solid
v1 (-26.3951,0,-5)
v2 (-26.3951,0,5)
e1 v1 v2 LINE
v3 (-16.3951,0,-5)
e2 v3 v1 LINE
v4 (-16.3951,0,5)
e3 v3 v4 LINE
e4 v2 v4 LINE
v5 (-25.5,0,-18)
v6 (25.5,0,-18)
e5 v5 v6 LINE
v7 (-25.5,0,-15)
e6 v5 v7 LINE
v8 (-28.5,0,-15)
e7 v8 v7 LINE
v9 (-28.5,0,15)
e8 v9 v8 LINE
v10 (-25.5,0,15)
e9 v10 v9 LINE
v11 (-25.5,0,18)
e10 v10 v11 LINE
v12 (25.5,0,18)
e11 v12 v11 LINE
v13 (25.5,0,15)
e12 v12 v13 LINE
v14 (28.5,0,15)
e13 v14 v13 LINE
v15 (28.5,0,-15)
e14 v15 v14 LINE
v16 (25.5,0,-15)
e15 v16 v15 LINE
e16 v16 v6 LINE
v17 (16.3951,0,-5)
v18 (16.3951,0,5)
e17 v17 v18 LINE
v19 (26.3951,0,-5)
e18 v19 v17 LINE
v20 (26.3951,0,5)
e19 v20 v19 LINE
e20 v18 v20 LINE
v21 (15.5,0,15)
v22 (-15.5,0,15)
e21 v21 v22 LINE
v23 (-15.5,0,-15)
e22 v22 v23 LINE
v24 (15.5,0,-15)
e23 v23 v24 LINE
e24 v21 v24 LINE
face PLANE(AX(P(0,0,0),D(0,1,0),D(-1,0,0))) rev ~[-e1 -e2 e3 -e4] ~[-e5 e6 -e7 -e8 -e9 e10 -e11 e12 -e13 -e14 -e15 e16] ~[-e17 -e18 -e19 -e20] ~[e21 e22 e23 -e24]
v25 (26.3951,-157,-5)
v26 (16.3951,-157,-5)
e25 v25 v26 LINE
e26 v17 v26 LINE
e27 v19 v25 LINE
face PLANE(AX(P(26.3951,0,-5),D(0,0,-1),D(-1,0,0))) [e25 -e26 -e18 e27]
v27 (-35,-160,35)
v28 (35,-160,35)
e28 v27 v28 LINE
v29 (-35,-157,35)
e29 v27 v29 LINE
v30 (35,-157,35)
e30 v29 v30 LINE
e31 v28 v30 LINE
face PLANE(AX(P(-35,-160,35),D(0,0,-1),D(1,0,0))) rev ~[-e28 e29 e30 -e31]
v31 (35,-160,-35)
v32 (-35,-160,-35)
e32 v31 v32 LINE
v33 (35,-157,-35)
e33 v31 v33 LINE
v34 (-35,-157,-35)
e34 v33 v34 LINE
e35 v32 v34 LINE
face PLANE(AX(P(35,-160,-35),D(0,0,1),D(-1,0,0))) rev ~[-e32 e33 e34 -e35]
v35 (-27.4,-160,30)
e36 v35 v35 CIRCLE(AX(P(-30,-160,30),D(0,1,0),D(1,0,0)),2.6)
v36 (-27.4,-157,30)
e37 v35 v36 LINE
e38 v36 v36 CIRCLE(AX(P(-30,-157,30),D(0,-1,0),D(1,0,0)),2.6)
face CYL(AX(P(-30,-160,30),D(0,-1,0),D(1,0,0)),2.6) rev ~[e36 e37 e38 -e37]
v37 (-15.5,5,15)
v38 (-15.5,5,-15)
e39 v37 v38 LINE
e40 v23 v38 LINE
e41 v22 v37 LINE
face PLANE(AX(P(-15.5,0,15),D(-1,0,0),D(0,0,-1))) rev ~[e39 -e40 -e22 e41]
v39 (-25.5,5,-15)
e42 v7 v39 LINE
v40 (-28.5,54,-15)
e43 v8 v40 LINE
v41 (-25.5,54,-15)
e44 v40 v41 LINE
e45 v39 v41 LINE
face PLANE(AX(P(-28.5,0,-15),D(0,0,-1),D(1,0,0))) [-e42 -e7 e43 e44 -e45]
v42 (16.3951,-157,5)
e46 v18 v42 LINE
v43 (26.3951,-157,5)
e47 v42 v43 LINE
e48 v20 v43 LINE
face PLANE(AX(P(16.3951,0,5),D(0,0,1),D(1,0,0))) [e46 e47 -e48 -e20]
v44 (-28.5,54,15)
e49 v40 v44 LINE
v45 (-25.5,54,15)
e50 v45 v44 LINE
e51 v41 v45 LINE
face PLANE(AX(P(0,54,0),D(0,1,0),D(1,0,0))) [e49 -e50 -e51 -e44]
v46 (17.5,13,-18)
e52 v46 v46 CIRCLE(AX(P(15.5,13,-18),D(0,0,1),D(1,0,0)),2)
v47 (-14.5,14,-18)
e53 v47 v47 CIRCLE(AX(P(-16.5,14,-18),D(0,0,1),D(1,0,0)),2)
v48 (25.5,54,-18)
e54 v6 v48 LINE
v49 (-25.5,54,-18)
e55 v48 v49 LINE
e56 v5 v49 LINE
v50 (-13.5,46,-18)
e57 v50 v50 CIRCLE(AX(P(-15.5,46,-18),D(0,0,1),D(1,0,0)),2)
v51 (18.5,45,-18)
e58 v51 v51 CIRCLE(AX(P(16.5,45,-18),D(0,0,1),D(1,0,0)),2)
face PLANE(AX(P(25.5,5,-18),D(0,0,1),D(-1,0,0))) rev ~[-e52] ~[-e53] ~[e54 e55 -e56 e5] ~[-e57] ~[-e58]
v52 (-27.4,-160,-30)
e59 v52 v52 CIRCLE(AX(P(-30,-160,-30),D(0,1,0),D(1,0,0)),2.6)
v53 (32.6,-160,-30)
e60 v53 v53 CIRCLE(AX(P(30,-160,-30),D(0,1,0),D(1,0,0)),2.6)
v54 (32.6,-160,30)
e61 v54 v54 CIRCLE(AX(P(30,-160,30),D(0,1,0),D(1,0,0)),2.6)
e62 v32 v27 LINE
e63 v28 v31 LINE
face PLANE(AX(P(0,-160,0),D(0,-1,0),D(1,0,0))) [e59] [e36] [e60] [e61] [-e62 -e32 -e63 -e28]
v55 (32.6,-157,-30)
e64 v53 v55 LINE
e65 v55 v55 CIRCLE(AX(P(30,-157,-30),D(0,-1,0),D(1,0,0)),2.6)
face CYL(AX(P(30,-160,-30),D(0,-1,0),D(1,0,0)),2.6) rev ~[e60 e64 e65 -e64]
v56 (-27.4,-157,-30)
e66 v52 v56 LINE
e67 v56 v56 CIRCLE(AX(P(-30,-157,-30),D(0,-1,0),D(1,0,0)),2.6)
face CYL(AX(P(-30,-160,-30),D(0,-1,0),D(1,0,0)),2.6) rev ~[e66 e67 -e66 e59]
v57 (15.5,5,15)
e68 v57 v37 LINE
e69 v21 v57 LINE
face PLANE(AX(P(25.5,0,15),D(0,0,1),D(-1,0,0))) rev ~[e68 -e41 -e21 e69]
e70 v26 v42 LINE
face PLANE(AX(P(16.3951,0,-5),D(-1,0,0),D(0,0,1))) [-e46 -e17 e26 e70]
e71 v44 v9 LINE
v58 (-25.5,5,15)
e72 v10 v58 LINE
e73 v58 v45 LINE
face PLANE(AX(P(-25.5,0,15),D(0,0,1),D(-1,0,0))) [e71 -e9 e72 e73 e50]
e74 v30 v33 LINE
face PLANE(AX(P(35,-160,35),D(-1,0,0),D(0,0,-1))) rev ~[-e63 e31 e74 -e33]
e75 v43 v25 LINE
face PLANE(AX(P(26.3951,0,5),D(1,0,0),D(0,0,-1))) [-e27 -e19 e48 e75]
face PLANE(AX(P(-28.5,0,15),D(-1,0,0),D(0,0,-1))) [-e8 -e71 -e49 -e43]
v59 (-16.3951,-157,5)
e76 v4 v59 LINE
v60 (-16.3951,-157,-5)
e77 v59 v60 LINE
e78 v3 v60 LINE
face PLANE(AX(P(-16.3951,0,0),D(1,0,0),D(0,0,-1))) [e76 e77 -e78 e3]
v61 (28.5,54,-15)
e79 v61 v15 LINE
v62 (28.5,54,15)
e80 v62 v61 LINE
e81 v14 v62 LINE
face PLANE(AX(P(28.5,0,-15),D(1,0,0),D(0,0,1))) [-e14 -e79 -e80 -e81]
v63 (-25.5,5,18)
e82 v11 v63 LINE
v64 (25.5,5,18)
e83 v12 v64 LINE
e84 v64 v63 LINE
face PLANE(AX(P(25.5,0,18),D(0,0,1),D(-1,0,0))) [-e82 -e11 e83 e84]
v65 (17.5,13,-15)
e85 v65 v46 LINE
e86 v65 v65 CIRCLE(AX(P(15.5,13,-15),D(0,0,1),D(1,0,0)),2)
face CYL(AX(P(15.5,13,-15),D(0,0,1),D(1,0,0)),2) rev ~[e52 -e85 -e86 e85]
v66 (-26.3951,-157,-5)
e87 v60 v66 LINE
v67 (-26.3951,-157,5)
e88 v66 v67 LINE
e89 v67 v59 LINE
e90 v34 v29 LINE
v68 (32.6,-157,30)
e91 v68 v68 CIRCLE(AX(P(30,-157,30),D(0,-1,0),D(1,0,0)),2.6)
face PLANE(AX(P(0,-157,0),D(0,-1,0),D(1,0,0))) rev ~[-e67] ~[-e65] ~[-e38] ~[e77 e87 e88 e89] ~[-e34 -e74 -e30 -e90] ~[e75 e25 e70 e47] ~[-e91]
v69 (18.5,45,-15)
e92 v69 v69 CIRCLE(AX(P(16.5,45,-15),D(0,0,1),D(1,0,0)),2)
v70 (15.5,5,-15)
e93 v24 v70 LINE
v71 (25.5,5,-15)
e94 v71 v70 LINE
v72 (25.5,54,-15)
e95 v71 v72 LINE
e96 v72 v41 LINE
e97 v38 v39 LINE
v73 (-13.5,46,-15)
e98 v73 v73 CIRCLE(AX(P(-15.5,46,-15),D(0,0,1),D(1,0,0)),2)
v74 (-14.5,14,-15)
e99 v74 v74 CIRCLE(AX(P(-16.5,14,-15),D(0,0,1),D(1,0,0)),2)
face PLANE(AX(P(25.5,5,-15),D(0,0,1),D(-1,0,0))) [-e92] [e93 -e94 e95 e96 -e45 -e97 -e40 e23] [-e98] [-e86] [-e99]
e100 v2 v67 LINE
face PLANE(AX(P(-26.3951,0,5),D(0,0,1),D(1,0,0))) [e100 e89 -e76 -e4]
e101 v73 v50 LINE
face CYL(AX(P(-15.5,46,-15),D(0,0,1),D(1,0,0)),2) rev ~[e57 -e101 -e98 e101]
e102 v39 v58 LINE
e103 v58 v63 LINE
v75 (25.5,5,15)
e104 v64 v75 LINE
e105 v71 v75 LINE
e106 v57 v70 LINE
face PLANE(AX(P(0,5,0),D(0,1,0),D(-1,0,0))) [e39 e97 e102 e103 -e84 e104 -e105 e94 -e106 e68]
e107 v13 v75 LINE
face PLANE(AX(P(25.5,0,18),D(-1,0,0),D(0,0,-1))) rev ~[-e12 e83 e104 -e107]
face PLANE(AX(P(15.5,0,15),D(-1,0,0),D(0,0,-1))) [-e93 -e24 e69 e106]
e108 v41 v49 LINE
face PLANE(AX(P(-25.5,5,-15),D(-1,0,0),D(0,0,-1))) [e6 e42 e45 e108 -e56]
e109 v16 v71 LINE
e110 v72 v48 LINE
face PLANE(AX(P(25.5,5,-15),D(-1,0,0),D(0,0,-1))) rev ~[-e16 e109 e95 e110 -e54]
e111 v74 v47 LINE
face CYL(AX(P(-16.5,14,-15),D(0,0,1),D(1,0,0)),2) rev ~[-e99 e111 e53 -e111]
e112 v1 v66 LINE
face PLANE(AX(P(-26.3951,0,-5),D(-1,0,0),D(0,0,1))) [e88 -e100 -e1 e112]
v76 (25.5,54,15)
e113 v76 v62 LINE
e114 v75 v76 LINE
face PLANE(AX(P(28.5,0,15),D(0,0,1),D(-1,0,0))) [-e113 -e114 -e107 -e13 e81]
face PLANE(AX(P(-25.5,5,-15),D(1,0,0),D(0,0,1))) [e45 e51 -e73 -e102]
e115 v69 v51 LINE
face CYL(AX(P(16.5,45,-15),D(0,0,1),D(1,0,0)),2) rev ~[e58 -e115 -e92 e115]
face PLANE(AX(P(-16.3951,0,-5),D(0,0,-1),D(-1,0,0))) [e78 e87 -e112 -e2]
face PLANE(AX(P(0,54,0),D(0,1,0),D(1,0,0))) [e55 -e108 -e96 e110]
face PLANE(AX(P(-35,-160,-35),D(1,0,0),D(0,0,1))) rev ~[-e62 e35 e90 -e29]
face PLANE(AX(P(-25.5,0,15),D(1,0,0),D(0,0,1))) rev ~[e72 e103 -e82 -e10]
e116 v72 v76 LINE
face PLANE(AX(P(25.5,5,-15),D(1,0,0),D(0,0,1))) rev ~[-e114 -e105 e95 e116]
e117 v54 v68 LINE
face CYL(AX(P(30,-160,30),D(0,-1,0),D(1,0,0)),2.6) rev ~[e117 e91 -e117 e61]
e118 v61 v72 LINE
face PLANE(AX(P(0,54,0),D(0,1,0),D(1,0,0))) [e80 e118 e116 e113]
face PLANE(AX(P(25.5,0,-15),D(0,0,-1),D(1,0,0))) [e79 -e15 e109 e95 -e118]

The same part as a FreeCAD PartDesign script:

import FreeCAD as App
import Part
import Sketcher
Q = App.Units.Quantity

doc = App.newDocument("Part")
params = doc.addObject("Spreadsheet::Sheet", "Params")
for row, (alias, value) in enumerate([
    ("sketch1_width", "10 mm"),
    ("sketch1_height", "30 mm"),
    ("pad1_length", "5 mm"),
    ("sketch2_width", "51 mm"),
    ("sketch2_width2", "3 mm"),
    ("sketch2_height", "30 mm"),
    ("pad2_length", "5 mm"),
    ("sketch3_width", "51 mm"),
    ("sketch3_height", "3 mm"),
    ("pad3_length", "49 mm"),
    ("sketch4_diameter", "4 mm"),
    ("pocket1_length", "49 mm"),
    ("sketch5_width", "3 mm"),
    ("sketch5_height", "30 mm"),
    ("pad4_length", "49 mm"),
    ("sketch6_width", "10 mm"),
    ("pad5_length", "160 mm"),
    ("sketch7_diameter", "5.2 mm"),
    ("sketch7_width", "70 mm"),
    ("sketch7_width2", "10 mm"),
    ("pad6_length", "3 mm"),
], start=1):
    params.set(f"A{row}", alias)
    params.set(f"B{row}", "=" + value)
    params.setAlias(f"B{row}", alias)

body = doc.addObject("PartDesign::Body", "Body")
body.AllowCompound = True

sketch1 = body.newObject("Sketcher::SketchObject", "Sketch")
sketch1.AttachmentSupport = (doc.getObject("XZ_Plane"), [""])
sketch1.MapMode = "FlatFace"
sketch1.addGeometry(Part.LineSegment(App.Vector(-26, -15, 0), App.Vector(-26, 15, 0)), False)
sketch1.addGeometry(Part.LineSegment(App.Vector(-26, 15, 0), App.Vector(-16, 15, 0)), False)
sketch1.addGeometry(Part.LineSegment(App.Vector(-16, 15, 0), App.Vector(-16, -15, 0)), False)
sketch1.addGeometry(Part.LineSegment(App.Vector(-16, -15, 0), App.Vector(-26, -15, 0)), False)
sketch1.addGeometry(Part.LineSegment(App.Vector(16, -15, 0), App.Vector(16, 15, 0)), False)
sketch1.addGeometry(Part.LineSegment(App.Vector(16, 15, 0), App.Vector(26, 15, 0)), False)
sketch1.addGeometry(Part.LineSegment(App.Vector(26, 15, 0), App.Vector(26, -15, 0)), False)
sketch1.addGeometry(Part.LineSegment(App.Vector(26, -15, 0), App.Vector(16, -15, 0)), False)
sketch1.addConstraint(Sketcher.Constraint("Coincident", 0, 2, 1, 1))
sketch1.addConstraint(Sketcher.Constraint("Coincident", 1, 2, 2, 1))
sketch1.addConstraint(Sketcher.Constraint("Coincident", 2, 2, 3, 1))
sketch1.addConstraint(Sketcher.Constraint("Coincident", 3, 2, 0, 1))
sketch1.addConstraint(Sketcher.Constraint("Coincident", 4, 2, 5, 1))
sketch1.addConstraint(Sketcher.Constraint("Coincident", 5, 2, 6, 1))
sketch1.addConstraint(Sketcher.Constraint("Coincident", 6, 2, 7, 1))
sketch1.addConstraint(Sketcher.Constraint("Coincident", 7, 2, 4, 1))
sketch1.addConstraint(Sketcher.Constraint("Vertical", 0))
sketch1.addConstraint(Sketcher.Constraint("Horizontal", 1))
sketch1.addConstraint(Sketcher.Constraint("Vertical", 2))
sketch1.addConstraint(Sketcher.Constraint("Horizontal", 3))
sketch1.addConstraint(Sketcher.Constraint("Vertical", 4))
sketch1.addConstraint(Sketcher.Constraint("Horizontal", 5))
sketch1.addConstraint(Sketcher.Constraint("Vertical", 6))
sketch1.addConstraint(Sketcher.Constraint("Horizontal", 7))
sketch1.addConstraint(Sketcher.Constraint("Symmetric", 2, 2, 4, 2, -1, 1))
sketch1.addConstraint(Sketcher.Constraint("Symmetric", 0, 2, 6, 2, -1, 1))
sketch1.addConstraint(Sketcher.Constraint("Horizontal", 1, 2, 4, 2))
sketch1.addConstraint(Sketcher.Constraint("DistanceX", 1, 1, 1, 2, Q("10 mm")))
sketch1.addConstraint(Sketcher.Constraint("DistanceY", 0, 1, 0, 2, Q("30 mm")))
sketch1.addConstraint(Sketcher.Constraint("DistanceX", 0, 2, 5, 2, Q("51 mm")))
sketch1.setExpression("Constraints[19]", "Params.sketch1_width")
sketch1.setExpression("Constraints[20]", "Params.sketch1_height")
pad1 = body.newObject("PartDesign::Pad", "Pad")
pad1.Profile = sketch1
pad1.setExpression("Length", "Params.pad1_length")
pad1.Reversed = True

sketch2 = body.newObject("Sketcher::SketchObject", "Sketch001")
sketch2.AttachmentSupport = (doc.getObject("XZ_Plane"), [""])
sketch2.MapMode = "FlatFace"
sketch2.addGeometry(Part.LineSegment(App.Vector(-25.5, 18, 0), App.Vector(25.5, 18, 0)), False)
sketch2.addGeometry(Part.LineSegment(App.Vector(25.5, 18, 0), App.Vector(25.5, 15, 0)), False)
sketch2.addGeometry(Part.LineSegment(App.Vector(25.5, 15, 0), App.Vector(-25.5, 15, 0)), False)
sketch2.addGeometry(Part.LineSegment(App.Vector(-25.5, 15, 0), App.Vector(-25.5, 18, 0)), False)
sketch2.addGeometry(Part.LineSegment(App.Vector(25.5, 15, 0), App.Vector(28.5, 15, 0)), False)
sketch2.addGeometry(Part.LineSegment(App.Vector(28.5, 15, 0), App.Vector(28.5, -15, 0)), False)
sketch2.addGeometry(Part.LineSegment(App.Vector(28.5, -15, 0), App.Vector(25.5, -15, 0)), False)
sketch2.addGeometry(Part.LineSegment(App.Vector(25.5, -15, 0), App.Vector(25.5, 15, 0)), False)
sketch2.addGeometry(Part.LineSegment(App.Vector(-28.5, 15, 0), App.Vector(-25.5, 15, 0)), False)
sketch2.addGeometry(Part.LineSegment(App.Vector(-25.5, 15, 0), App.Vector(-25.5, -15, 0)), False)
sketch2.addGeometry(Part.LineSegment(App.Vector(-25.5, -15, 0), App.Vector(-28.5, -15, 0)), False)
sketch2.addGeometry(Part.LineSegment(App.Vector(-28.5, -15, 0), App.Vector(-28.5, 15, 0)), False)
sketch2.addGeometry(Part.LineSegment(App.Vector(-25.5, -15, 0), App.Vector(25.5, -15, 0)), False)
sketch2.addGeometry(Part.LineSegment(App.Vector(25.5, -15, 0), App.Vector(25.5, -18, 0)), False)
sketch2.addGeometry(Part.LineSegment(App.Vector(25.5, -18, 0), App.Vector(-25.5, -18, 0)), False)
sketch2.addGeometry(Part.LineSegment(App.Vector(-25.5, -18, 0), App.Vector(-25.5, -15, 0)), False)
sketch2.addConstraint(Sketcher.Constraint("Coincident", 0, 2, 1, 1))
sketch2.addConstraint(Sketcher.Constraint("Coincident", 1, 2, 2, 1))
sketch2.addConstraint(Sketcher.Constraint("Coincident", 2, 2, 3, 1))
sketch2.addConstraint(Sketcher.Constraint("Coincident", 3, 2, 0, 1))
sketch2.addConstraint(Sketcher.Constraint("Coincident", 4, 2, 5, 1))
sketch2.addConstraint(Sketcher.Constraint("Coincident", 5, 2, 6, 1))
sketch2.addConstraint(Sketcher.Constraint("Coincident", 6, 2, 7, 1))
sketch2.addConstraint(Sketcher.Constraint("Coincident", 7, 2, 4, 1))
sketch2.addConstraint(Sketcher.Constraint("Coincident", 8, 2, 9, 1))
sketch2.addConstraint(Sketcher.Constraint("Coincident", 9, 2, 10, 1))
sketch2.addConstraint(Sketcher.Constraint("Coincident", 10, 2, 11, 1))
sketch2.addConstraint(Sketcher.Constraint("Coincident", 11, 2, 8, 1))
sketch2.addConstraint(Sketcher.Constraint("Coincident", 12, 2, 13, 1))
sketch2.addConstraint(Sketcher.Constraint("Coincident", 13, 2, 14, 1))
sketch2.addConstraint(Sketcher.Constraint("Coincident", 14, 2, 15, 1))
sketch2.addConstraint(Sketcher.Constraint("Coincident", 15, 2, 12, 1))
sketch2.addConstraint(Sketcher.Constraint("Horizontal", 0))
sketch2.addConstraint(Sketcher.Constraint("Vertical", 1))
sketch2.addConstraint(Sketcher.Constraint("Horizontal", 2))
sketch2.addConstraint(Sketcher.Constraint("Vertical", 3))
sketch2.addConstraint(Sketcher.Constraint("Horizontal", 4))
sketch2.addConstraint(Sketcher.Constraint("Vertical", 5))
sketch2.addConstraint(Sketcher.Constraint("Horizontal", 6))
sketch2.addConstraint(Sketcher.Constraint("Vertical", 7))
sketch2.addConstraint(Sketcher.Constraint("Horizontal", 8))
sketch2.addConstraint(Sketcher.Constraint("Vertical", 9))
sketch2.addConstraint(Sketcher.Constraint("Horizontal", 10))
sketch2.addConstraint(Sketcher.Constraint("Vertical", 11))
sketch2.addConstraint(Sketcher.Constraint("Horizontal", 12))
sketch2.addConstraint(Sketcher.Constraint("Vertical", 13))
sketch2.addConstraint(Sketcher.Constraint("Horizontal", 14))
sketch2.addConstraint(Sketcher.Constraint("Vertical", 15))
sketch2.addConstraint(Sketcher.Constraint("Coincident", 7, 2, 1, 2))
sketch2.addConstraint(Sketcher.Constraint("Coincident", 8, 2, 2, 2))
sketch2.addConstraint(Sketcher.Constraint("Coincident", 12, 2, 6, 2))
sketch2.addConstraint(Sketcher.Constraint("Coincident", 15, 2, 9, 2))
sketch2.addConstraint(Sketcher.Constraint("Symmetric", 2, 2, 6, 2, -1, 1))
sketch2.addConstraint(Sketcher.Constraint("Equal", 6, 8))
sketch2.addConstraint(Sketcher.Constraint("Equal", 10, 1))
sketch2.addConstraint(Sketcher.Constraint("Equal", 3, 13))
sketch2.addConstraint(Sketcher.Constraint("DistanceX", 0, 1, 0, 2, Q("51 mm")))
sketch2.addConstraint(Sketcher.Constraint("DistanceX", 4, 1, 4, 2, Q("3 mm")))
sketch2.addConstraint(Sketcher.Constraint("DistanceY", 5, 2, 5, 1, Q("30 mm")))
sketch2.setExpression("Constraints[40]", "Params.sketch2_width")
sketch2.setExpression("Constraints[41]", "Params.sketch2_width2")
sketch2.setExpression("Constraints[42]", "Params.sketch2_height")
pad2 = body.newObject("PartDesign::Pad", "Pad001")
pad2.Profile = sketch2
pad2.setExpression("Length", "Params.pad2_length")
pad2.Reversed = True

sketch3 = body.newObject("Sketcher::SketchObject", "Sketch002")
sketch3.AttachmentSupport = (doc.getObject("XZ_Plane"), [""])
sketch3.MapMode = "FlatFace"
sketch3.AttachmentOffset = App.Placement(App.Vector(0, 0, -5), App.Rotation())
sketch3.addGeometry(Part.LineSegment(App.Vector(25.5, -15, 0), App.Vector(25.5, -18, 0)), False)
sketch3.addGeometry(Part.LineSegment(App.Vector(25.5, -18, 0), App.Vector(-25.5, -18, 0)), False)
sketch3.addGeometry(Part.LineSegment(App.Vector(-25.5, -18, 0), App.Vector(-25.5, -15, 0)), False)
sketch3.addGeometry(Part.LineSegment(App.Vector(-25.5, -15, 0), App.Vector(25.5, -15, 0)), False)
sketch3.addConstraint(Sketcher.Constraint("Coincident", 0, 2, 1, 1))
sketch3.addConstraint(Sketcher.Constraint("Coincident", 1, 2, 2, 1))
sketch3.addConstraint(Sketcher.Constraint("Coincident", 2, 2, 3, 1))
sketch3.addConstraint(Sketcher.Constraint("Coincident", 3, 2, 0, 1))
sketch3.addConstraint(Sketcher.Constraint("Vertical", 0))
sketch3.addConstraint(Sketcher.Constraint("Horizontal", 1))
sketch3.addConstraint(Sketcher.Constraint("Vertical", 2))
sketch3.addConstraint(Sketcher.Constraint("Horizontal", 3))
sketch3.addConstraint(Sketcher.Constraint("DistanceX", 1, 2, 1, 1, Q("51 mm")))
sketch3.addConstraint(Sketcher.Constraint("DistanceY", 0, 2, 0, 1, Q("3 mm")))
sketch3.addConstraint(Sketcher.Constraint("DistanceY", 0, 2, -1, 1, Q("18 mm")))
sketch3.addConstraint(Sketcher.Constraint("DistanceX", -1, 1, 0, 2, Q("25.5 mm")))
sketch3.setExpression("Constraints[8]", "Params.sketch3_width")
sketch3.setExpression("Constraints[9]", "Params.sketch3_height")
pad3 = body.newObject("PartDesign::Pad", "Pad002")
pad3.Profile = sketch3
pad3.setExpression("Length", "Params.pad3_length")
pad3.Reversed = True

sketch4 = body.newObject("Sketcher::SketchObject", "Sketch003")
sketch4.AttachmentSupport = (doc.getObject("XY_Plane"), [""])
sketch4.MapMode = "FlatFace"
sketch4.AttachmentOffset = App.Placement(App.Vector(0, 0, -15), App.Rotation())
sketch4.addGeometry(Part.Circle(App.Vector(16.5, 45, 0), App.Vector(0, 0, 1), 2), False)
sketch4.addGeometry(Part.Circle(App.Vector(-15.5, 46, 0), App.Vector(0, 0, 1), 2), False)
sketch4.addGeometry(Part.Circle(App.Vector(-16.5, 14, 0), App.Vector(0, 0, 1), 2), False)
sketch4.addGeometry(Part.Circle(App.Vector(15.5, 13, 0), App.Vector(0, 0, 1), 2), False)
sketch4.addConstraint(Sketcher.Constraint("Equal", 0, 1))
sketch4.addConstraint(Sketcher.Constraint("Equal", 1, 2))
sketch4.addConstraint(Sketcher.Constraint("Equal", 2, 3))
sketch4.addConstraint(Sketcher.Constraint("Diameter", 0, Q("4 mm")))
sketch4.addConstraint(Sketcher.Constraint("DistanceY", -1, 1, 0, 3, Q("45 mm")))
sketch4.addConstraint(Sketcher.Constraint("DistanceY", -1, 1, 1, 3, Q("46 mm")))
sketch4.addConstraint(Sketcher.Constraint("DistanceY", -1, 1, 2, 3, Q("14 mm")))
sketch4.addConstraint(Sketcher.Constraint("DistanceY", -1, 1, 3, 3, Q("13 mm")))
sketch4.addConstraint(Sketcher.Constraint("DistanceX", 1, 3, 0, 3, Q("32 mm")))
sketch4.addConstraint(Sketcher.Constraint("DistanceX", 2, 3, 1, 3, Q("1 mm")))
sketch4.addConstraint(Sketcher.Constraint("DistanceX", 3, 3, 0, 3, Q("1 mm")))
sketch4.addConstraint(Sketcher.Constraint("DistanceX", -1, 1, 0, 3, Q("16.5 mm")))
sketch4.setExpression("Constraints[3]", "Params.sketch4_diameter")
pocket1 = body.newObject("PartDesign::Pocket", "Pocket")
pocket1.Profile = sketch4
pocket1.setExpression("Length", "Params.pocket1_length")

sketch5 = body.newObject("Sketcher::SketchObject", "Sketch004")
sketch5.AttachmentSupport = (doc.getObject("XZ_Plane"), [""])
sketch5.MapMode = "FlatFace"
sketch5.AttachmentOffset = App.Placement(App.Vector(0, 0, -5), App.Rotation())
sketch5.addGeometry(Part.LineSegment(App.Vector(-25.5, -15, 0), App.Vector(-28.5, -15, 0)), False)
sketch5.addGeometry(Part.LineSegment(App.Vector(-28.5, -15, 0), App.Vector(-28.5, 15, 0)), False)
sketch5.addGeometry(Part.LineSegment(App.Vector(-28.5, 15, 0), App.Vector(-25.5, 15, 0)), False)
sketch5.addGeometry(Part.LineSegment(App.Vector(-25.5, 15, 0), App.Vector(-25.5, -15, 0)), False)
sketch5.addGeometry(Part.LineSegment(App.Vector(28.5, 15, 0), App.Vector(28.5, -15, 0)), False)
sketch5.addGeometry(Part.LineSegment(App.Vector(28.5, -15, 0), App.Vector(25.5, -15, 0)), False)
sketch5.addGeometry(Part.LineSegment(App.Vector(25.5, -15, 0), App.Vector(25.5, 15, 0)), False)
sketch5.addGeometry(Part.LineSegment(App.Vector(25.5, 15, 0), App.Vector(28.5, 15, 0)), False)
sketch5.addConstraint(Sketcher.Constraint("Coincident", 0, 2, 1, 1))
sketch5.addConstraint(Sketcher.Constraint("Coincident", 1, 2, 2, 1))
sketch5.addConstraint(Sketcher.Constraint("Coincident", 2, 2, 3, 1))
sketch5.addConstraint(Sketcher.Constraint("Coincident", 3, 2, 0, 1))
sketch5.addConstraint(Sketcher.Constraint("Coincident", 4, 2, 5, 1))
sketch5.addConstraint(Sketcher.Constraint("Coincident", 5, 2, 6, 1))
sketch5.addConstraint(Sketcher.Constraint("Coincident", 6, 2, 7, 1))
sketch5.addConstraint(Sketcher.Constraint("Coincident", 7, 2, 4, 1))
sketch5.addConstraint(Sketcher.Constraint("Horizontal", 0))
sketch5.addConstraint(Sketcher.Constraint("Vertical", 1))
sketch5.addConstraint(Sketcher.Constraint("Horizontal", 2))
sketch5.addConstraint(Sketcher.Constraint("Vertical", 3))
sketch5.addConstraint(Sketcher.Constraint("Vertical", 4))
sketch5.addConstraint(Sketcher.Constraint("Horizontal", 5))
sketch5.addConstraint(Sketcher.Constraint("Vertical", 6))
sketch5.addConstraint(Sketcher.Constraint("Horizontal", 7))
sketch5.addConstraint(Sketcher.Constraint("Symmetric", 1, 2, 4, 2, -1, 1))
sketch5.addConstraint(Sketcher.Constraint("Symmetric", 3, 2, 6, 2, -1, 1))
sketch5.addConstraint(Sketcher.Constraint("Horizontal", 3, 2, 4, 2))
sketch5.addConstraint(Sketcher.Constraint("DistanceX", 0, 2, 0, 1, Q("3 mm")))
sketch5.addConstraint(Sketcher.Constraint("DistanceY", 1, 1, 1, 2, Q("30 mm")))
sketch5.addConstraint(Sketcher.Constraint("DistanceX", 3, 2, 4, 2, Q("54 mm")))
sketch5.setExpression("Constraints[19]", "Params.sketch5_width")
sketch5.setExpression("Constraints[20]", "Params.sketch5_height")
pad4 = body.newObject("PartDesign::Pad", "Pad003")
pad4.Profile = sketch5
pad4.setExpression("Length", "Params.pad4_length")
pad4.Reversed = True

sketch6 = body.newObject("Sketcher::SketchObject", "Sketch005")
sketch6.AttachmentSupport = (doc.getObject("XZ_Plane"), [""])
sketch6.MapMode = "FlatFace"
sketch6.addGeometry(Part.LineSegment(App.Vector(-16, -5, 0), App.Vector(-16, 5, 0)), False)
sketch6.addGeometry(Part.LineSegment(App.Vector(-16, 5, 0), App.Vector(-26, 5, 0)), False)
sketch6.addGeometry(Part.LineSegment(App.Vector(-26, 5, 0), App.Vector(-26, -5, 0)), False)
sketch6.addGeometry(Part.LineSegment(App.Vector(-26, -5, 0), App.Vector(-16, -5, 0)), False)
sketch6.addGeometry(Part.LineSegment(App.Vector(16, -5, 0), App.Vector(26, -5, 0)), False)
sketch6.addGeometry(Part.LineSegment(App.Vector(26, -5, 0), App.Vector(26, 5, 0)), False)
sketch6.addGeometry(Part.LineSegment(App.Vector(26, 5, 0), App.Vector(16, 5, 0)), False)
sketch6.addGeometry(Part.LineSegment(App.Vector(16, 5, 0), App.Vector(16, -5, 0)), False)
sketch6.addConstraint(Sketcher.Constraint("Coincident", 0, 2, 1, 1))
sketch6.addConstraint(Sketcher.Constraint("Coincident", 1, 2, 2, 1))
sketch6.addConstraint(Sketcher.Constraint("Coincident", 2, 2, 3, 1))
sketch6.addConstraint(Sketcher.Constraint("Coincident", 3, 2, 0, 1))
sketch6.addConstraint(Sketcher.Constraint("Coincident", 4, 2, 5, 1))
sketch6.addConstraint(Sketcher.Constraint("Coincident", 5, 2, 6, 1))
sketch6.addConstraint(Sketcher.Constraint("Coincident", 6, 2, 7, 1))
sketch6.addConstraint(Sketcher.Constraint("Coincident", 7, 2, 4, 1))
sketch6.addConstraint(Sketcher.Constraint("Vertical", 0))
sketch6.addConstraint(Sketcher.Constraint("Horizontal", 1))
sketch6.addConstraint(Sketcher.Constraint("Vertical", 2))
sketch6.addConstraint(Sketcher.Constraint("Horizontal", 3))
sketch6.addConstraint(Sketcher.Constraint("Horizontal", 4))
sketch6.addConstraint(Sketcher.Constraint("Vertical", 5))
sketch6.addConstraint(Sketcher.Constraint("Horizontal", 6))
sketch6.addConstraint(Sketcher.Constraint("Vertical", 7))
sketch6.addConstraint(Sketcher.Constraint("Symmetric", 1, 2, 4, 2, -1, 1))
sketch6.addConstraint(Sketcher.Constraint("Symmetric", 3, 2, 6, 2, -1, 1))
sketch6.addConstraint(Sketcher.Constraint("Horizontal", 3, 2, 4, 2))
sketch6.addConstraint(Sketcher.Constraint("Equal", 6, 0))
sketch6.addConstraint(Sketcher.Constraint("DistanceX", 1, 2, 1, 1, Q("10 mm")))
sketch6.addConstraint(Sketcher.Constraint("DistanceX", 0, 2, -1, 1, Q("16.395 mm")))
sketch6.setExpression("Constraints[20]", "Params.sketch6_width")
pad5 = body.newObject("PartDesign::Pad", "Pad004")
pad5.Profile = sketch6
pad5.setExpression("Length", "Params.pad5_length")

sketch7 = body.newObject("Sketcher::SketchObject", "Sketch006")
sketch7.AttachmentSupport = (doc.getObject("XZ_Plane"), [""])
sketch7.MapMode = "FlatFace"
sketch7.AttachmentOffset = App.Placement(App.Vector(0, 0, 160), App.Rotation())
sketch7.addGeometry(Part.LineSegment(App.Vector(35, 35, 0), App.Vector(-35, 35, 0)), False)
sketch7.addGeometry(Part.LineSegment(App.Vector(-35, 35, 0), App.Vector(-35, -35, 0)), False)
sketch7.addGeometry(Part.LineSegment(App.Vector(-35, -35, 0), App.Vector(35, -35, 0)), False)
sketch7.addGeometry(Part.LineSegment(App.Vector(35, -35, 0), App.Vector(35, 35, 0)), False)
sketch7.addGeometry(Part.Circle(App.Vector(-30, 30, 0), App.Vector(0, 0, 1), 2.6), False)
sketch7.addGeometry(Part.Circle(App.Vector(-30, -30, 0), App.Vector(0, 0, 1), 2.6), False)
sketch7.addGeometry(Part.Circle(App.Vector(30, -30, 0), App.Vector(0, 0, 1), 2.6), False)
sketch7.addGeometry(Part.Circle(App.Vector(30, 30, 0), App.Vector(0, 0, 1), 2.6), False)
sketch7.addGeometry(Part.LineSegment(App.Vector(16.4, -5, 0), App.Vector(16.4, 5, 0)), False)
sketch7.addGeometry(Part.LineSegment(App.Vector(16.4, 5, 0), App.Vector(26.4, 5, 0)), False)
sketch7.addGeometry(Part.LineSegment(App.Vector(26.4, 5, 0), App.Vector(26.4, -5, 0)), False)
sketch7.addGeometry(Part.LineSegment(App.Vector(26.4, -5, 0), App.Vector(16.4, -5, 0)), False)
sketch7.addGeometry(Part.LineSegment(App.Vector(-26.4, -5, 0), App.Vector(-26.4, 5, 0)), False)
sketch7.addGeometry(Part.LineSegment(App.Vector(-26.4, 5, 0), App.Vector(-16.4, 5, 0)), False)
sketch7.addGeometry(Part.LineSegment(App.Vector(-16.4, 5, 0), App.Vector(-16.4, -5, 0)), False)
sketch7.addGeometry(Part.LineSegment(App.Vector(-16.4, -5, 0), App.Vector(-26.4, -5, 0)), False)
sketch7.addConstraint(Sketcher.Constraint("Coincident", 0, 2, 1, 1))
sketch7.addConstraint(Sketcher.Constraint("Coincident", 1, 2, 2, 1))
sketch7.addConstraint(Sketcher.Constraint("Coincident", 2, 2, 3, 1))
sketch7.addConstraint(Sketcher.Constraint("Coincident", 3, 2, 0, 1))
sketch7.addConstraint(Sketcher.Constraint("Coincident", 8, 2, 9, 1))
sketch7.addConstraint(Sketcher.Constraint("Coincident", 9, 2, 10, 1))
sketch7.addConstraint(Sketcher.Constraint("Coincident", 10, 2, 11, 1))
sketch7.addConstraint(Sketcher.Constraint("Coincident", 11, 2, 8, 1))
sketch7.addConstraint(Sketcher.Constraint("Coincident", 12, 2, 13, 1))
sketch7.addConstraint(Sketcher.Constraint("Coincident", 13, 2, 14, 1))
sketch7.addConstraint(Sketcher.Constraint("Coincident", 14, 2, 15, 1))
sketch7.addConstraint(Sketcher.Constraint("Coincident", 15, 2, 12, 1))
sketch7.addConstraint(Sketcher.Constraint("Horizontal", 0))
sketch7.addConstraint(Sketcher.Constraint("Vertical", 1))
sketch7.addConstraint(Sketcher.Constraint("Horizontal", 2))
sketch7.addConstraint(Sketcher.Constraint("Vertical", 3))
sketch7.addConstraint(Sketcher.Constraint("Vertical", 8))
sketch7.addConstraint(Sketcher.Constraint("Horizontal", 9))
sketch7.addConstraint(Sketcher.Constraint("Vertical", 10))
sketch7.addConstraint(Sketcher.Constraint("Horizontal", 11))
sketch7.addConstraint(Sketcher.Constraint("Vertical", 12))
sketch7.addConstraint(Sketcher.Constraint("Horizontal", 13))
sketch7.addConstraint(Sketcher.Constraint("Vertical", 14))
sketch7.addConstraint(Sketcher.Constraint("Horizontal", 15))
sketch7.addConstraint(Sketcher.Constraint("Equal", 4, 5))
sketch7.addConstraint(Sketcher.Constraint("Equal", 5, 6))
sketch7.addConstraint(Sketcher.Constraint("Equal", 6, 7))
sketch7.addConstraint(Sketcher.Constraint("Symmetric", 4, 3, 6, 3, -1, 1))
sketch7.addConstraint(Sketcher.Constraint("Symmetric", 5, 3, 7, 3, -1, 1))
sketch7.addConstraint(Sketcher.Constraint("Symmetric", 0, 2, 2, 2, -1, 1))
sketch7.addConstraint(Sketcher.Constraint("Symmetric", 10, 2, 12, 2, -1, 1))
sketch7.addConstraint(Sketcher.Constraint("Symmetric", 8, 2, 14, 2, -1, 1))
sketch7.addConstraint(Sketcher.Constraint("Symmetric", 5, 3, 6, 3, -2))
sketch7.addConstraint(Sketcher.Constraint("Horizontal", 9, 2, 12, 2))
sketch7.addConstraint(Sketcher.Constraint("Equal", 2, 1))
sketch7.addConstraint(Sketcher.Constraint("Equal", 15, 8))
sketch7.addConstraint(Sketcher.Constraint("Diameter", 4, Q("5.2 mm")))
sketch7.addConstraint(Sketcher.Constraint("DistanceX", 0, 2, 0, 1, Q("70 mm")))
sketch7.addConstraint(Sketcher.Constraint("DistanceY", 5, 3, 4, 3, Q("60 mm")))
sketch7.addConstraint(Sketcher.Constraint("DistanceX", 5, 3, 6, 3, Q("60 mm")))
sketch7.addConstraint(Sketcher.Constraint("DistanceX", 9, 1, 9, 2, Q("10 mm")))
sketch7.addConstraint(Sketcher.Constraint("DistanceX", -1, 1, 8, 2, Q("16.395 mm")))
sketch7.setExpression("Constraints[36]", "Params.sketch7_diameter")
sketch7.setExpression("Constraints[37]", "Params.sketch7_width")
sketch7.setExpression("Constraints[40]", "Params.sketch7_width2")
pad6 = body.newObject("PartDesign::Pad", "Pad005")
pad6.Profile = sketch7
pad6.setExpression("Length", "Params.pad6_length")
pad6.Reversed = True

doc.recompute()
